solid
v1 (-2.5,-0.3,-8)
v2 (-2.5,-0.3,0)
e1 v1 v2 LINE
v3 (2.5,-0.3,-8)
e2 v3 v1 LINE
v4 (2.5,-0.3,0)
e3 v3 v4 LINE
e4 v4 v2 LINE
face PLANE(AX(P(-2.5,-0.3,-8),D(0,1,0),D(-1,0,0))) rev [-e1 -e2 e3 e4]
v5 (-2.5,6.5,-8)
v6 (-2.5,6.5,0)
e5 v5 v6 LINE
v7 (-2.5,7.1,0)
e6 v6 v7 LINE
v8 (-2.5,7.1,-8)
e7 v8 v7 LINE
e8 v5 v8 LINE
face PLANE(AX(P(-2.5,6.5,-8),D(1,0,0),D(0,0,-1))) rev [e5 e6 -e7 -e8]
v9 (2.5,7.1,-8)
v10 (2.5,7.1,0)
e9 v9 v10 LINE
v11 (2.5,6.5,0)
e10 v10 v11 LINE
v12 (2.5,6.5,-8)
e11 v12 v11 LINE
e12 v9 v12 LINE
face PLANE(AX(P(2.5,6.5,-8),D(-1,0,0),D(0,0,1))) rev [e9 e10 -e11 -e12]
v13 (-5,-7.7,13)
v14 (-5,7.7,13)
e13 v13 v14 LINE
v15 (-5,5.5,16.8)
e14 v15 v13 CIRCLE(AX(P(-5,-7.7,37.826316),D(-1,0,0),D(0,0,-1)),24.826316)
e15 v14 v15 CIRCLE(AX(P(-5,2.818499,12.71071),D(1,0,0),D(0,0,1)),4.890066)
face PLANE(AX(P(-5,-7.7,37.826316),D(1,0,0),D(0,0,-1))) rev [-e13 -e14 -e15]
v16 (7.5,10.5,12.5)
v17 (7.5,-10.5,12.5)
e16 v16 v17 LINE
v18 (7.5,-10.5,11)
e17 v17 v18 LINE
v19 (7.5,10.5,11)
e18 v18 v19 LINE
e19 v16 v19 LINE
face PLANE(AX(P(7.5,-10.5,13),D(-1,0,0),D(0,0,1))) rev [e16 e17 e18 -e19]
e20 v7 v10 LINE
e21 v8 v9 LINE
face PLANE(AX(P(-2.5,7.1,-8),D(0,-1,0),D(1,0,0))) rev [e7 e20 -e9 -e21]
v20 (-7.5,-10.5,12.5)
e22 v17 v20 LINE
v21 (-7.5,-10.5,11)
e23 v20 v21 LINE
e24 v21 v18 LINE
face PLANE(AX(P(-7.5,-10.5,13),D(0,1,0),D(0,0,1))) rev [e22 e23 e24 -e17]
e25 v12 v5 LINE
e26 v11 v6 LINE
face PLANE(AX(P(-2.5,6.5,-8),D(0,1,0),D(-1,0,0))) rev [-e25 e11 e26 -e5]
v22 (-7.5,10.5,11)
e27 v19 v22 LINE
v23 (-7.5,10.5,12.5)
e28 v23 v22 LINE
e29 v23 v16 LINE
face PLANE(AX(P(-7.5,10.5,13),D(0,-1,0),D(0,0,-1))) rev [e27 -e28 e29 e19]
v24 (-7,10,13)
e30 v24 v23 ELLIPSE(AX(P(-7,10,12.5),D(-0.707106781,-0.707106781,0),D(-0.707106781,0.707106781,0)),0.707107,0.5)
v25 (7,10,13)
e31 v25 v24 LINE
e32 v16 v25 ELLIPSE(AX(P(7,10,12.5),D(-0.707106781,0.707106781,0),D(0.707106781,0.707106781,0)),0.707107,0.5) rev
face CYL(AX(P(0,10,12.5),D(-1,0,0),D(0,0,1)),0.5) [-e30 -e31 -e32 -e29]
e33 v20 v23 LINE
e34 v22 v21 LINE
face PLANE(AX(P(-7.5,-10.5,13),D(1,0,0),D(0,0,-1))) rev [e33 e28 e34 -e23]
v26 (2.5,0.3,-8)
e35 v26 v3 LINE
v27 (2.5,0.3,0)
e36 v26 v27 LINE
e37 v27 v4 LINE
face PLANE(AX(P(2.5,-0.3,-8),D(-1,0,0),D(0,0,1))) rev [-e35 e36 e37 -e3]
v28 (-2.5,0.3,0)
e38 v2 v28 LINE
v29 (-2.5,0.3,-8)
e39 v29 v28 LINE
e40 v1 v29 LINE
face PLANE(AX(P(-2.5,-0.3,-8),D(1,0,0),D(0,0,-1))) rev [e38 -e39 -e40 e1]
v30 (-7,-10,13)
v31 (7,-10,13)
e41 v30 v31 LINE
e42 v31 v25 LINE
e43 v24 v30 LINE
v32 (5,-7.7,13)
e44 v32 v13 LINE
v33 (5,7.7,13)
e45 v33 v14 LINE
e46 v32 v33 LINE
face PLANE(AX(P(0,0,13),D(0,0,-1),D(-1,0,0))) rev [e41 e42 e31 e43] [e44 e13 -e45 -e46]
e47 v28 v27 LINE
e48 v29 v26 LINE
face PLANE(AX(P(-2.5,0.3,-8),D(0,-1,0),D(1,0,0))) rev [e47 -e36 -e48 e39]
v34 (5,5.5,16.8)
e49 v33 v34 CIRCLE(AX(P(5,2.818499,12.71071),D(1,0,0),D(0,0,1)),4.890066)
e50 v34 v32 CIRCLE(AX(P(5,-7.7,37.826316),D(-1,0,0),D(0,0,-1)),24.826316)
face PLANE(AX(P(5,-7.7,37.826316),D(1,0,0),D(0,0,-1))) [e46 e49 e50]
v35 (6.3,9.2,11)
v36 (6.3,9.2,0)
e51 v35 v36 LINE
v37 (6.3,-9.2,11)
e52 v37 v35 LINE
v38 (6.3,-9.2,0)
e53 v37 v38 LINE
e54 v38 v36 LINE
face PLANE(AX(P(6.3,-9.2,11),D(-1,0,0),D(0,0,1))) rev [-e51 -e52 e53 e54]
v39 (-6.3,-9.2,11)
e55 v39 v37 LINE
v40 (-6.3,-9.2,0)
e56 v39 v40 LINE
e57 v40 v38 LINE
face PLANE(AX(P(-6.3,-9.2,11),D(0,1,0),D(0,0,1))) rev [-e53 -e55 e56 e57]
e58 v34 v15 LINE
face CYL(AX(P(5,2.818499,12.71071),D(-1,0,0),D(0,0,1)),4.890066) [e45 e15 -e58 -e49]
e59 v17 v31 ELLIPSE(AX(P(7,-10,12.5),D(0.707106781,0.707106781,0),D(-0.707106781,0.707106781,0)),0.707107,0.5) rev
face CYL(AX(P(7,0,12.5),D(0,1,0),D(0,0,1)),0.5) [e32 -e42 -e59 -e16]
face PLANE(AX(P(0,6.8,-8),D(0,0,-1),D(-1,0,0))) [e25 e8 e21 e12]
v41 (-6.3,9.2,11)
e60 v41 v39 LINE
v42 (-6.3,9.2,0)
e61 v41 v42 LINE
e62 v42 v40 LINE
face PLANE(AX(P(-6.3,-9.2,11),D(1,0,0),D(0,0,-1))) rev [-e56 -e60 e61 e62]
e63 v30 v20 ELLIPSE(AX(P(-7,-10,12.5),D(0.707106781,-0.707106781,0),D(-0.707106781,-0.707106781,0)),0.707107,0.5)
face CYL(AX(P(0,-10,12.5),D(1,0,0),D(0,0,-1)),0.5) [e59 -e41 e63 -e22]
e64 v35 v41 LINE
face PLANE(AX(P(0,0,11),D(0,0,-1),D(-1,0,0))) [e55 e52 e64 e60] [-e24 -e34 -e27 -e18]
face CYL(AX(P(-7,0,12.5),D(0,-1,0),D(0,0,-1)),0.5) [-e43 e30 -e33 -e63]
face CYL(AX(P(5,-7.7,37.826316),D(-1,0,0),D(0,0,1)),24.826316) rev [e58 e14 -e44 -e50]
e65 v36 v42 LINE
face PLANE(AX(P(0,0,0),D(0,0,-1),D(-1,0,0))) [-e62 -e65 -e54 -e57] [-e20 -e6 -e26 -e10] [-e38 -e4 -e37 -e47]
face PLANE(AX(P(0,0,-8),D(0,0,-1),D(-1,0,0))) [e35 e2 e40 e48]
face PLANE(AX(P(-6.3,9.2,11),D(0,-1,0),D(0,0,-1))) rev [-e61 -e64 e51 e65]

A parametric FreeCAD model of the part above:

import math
import FreeCAD as App
import Part
import Sketcher
from FreeCAD import Vector
Q = App.Units.Quantity


def edges_at(feature, points):
    """Names of the edges that pass closest to the given points."""
    edges = feature.Shape.Edges
    near = lambda p: min(range(len(edges)), key=lambda i: edges[i].distToShape(Part.Vertex(*p))[0])
    return sorted({f"Edge{near(p) + 1}" for p in points})

doc = App.newDocument("Part")
body = doc.addObject("PartDesign::Body", "Body")

# Sketch on XY plane
sketch1 = body.newObject("Sketcher::SketchObject", "Sketch")
sketch1.AttachmentSupport = (doc.getObject("XY_Plane"), [""])
sketch1.MapMode = "FlatFace"
sketch1.addGeometry(Part.LineSegment(Vector(-6, 9, 0), Vector(-6, -9, 0)), False)
sketch1.addGeometry(Part.LineSegment(Vector(-6, -9, 0), Vector(6, -9, 0)), False)
sketch1.addGeometry(Part.LineSegment(Vector(6, -9, 0), Vector(6, 9, 0)), False)
sketch1.addGeometry(Part.LineSegment(Vector(6, 9, 0), Vector(-6, 9, 0)), False)
sketch1.addConstraint(Sketcher.Constraint("Coincident", 0, 2, 1, 1))
sketch1.addConstraint(Sketcher.Constraint("Coincident", 1, 2, 2, 1))
sketch1.addConstraint(Sketcher.Constraint("Coincident", 2, 2, 3, 1))
sketch1.addConstraint(Sketcher.Constraint("Coincident", 3, 2, 0, 1))
sketch1.addConstraint(Sketcher.Constraint("Vertical", 0))
sketch1.addConstraint(Sketcher.Constraint("Horizontal", 1))
sketch1.addConstraint(Sketcher.Constraint("Vertical", 2))
sketch1.addConstraint(Sketcher.Constraint("Horizontal", 3))
sketch1.addConstraint(Sketcher.Constraint("Symmetric", 0, 2, 2, 2, -1, 1))
sketch1.addConstraint(Sketcher.Constraint("DistanceX", 1, 1, 1, 2, Q("12.6 mm")))
sketch1.addConstraint(Sketcher.Constraint("DistanceY", 0, 2, 0, 1, Q("18.4 mm")))
pad1 = body.newObject("PartDesign::Pad", "Pad")
pad1.Profile = sketch1
pad1.Length = 11

# Sketch on XY plane
sketch2 = body.newObject("Sketcher::SketchObject", "Sketch001")
sketch2.AttachmentSupport = (doc.getObject("XY_Plane"), [""])
sketch2.MapMode = "FlatFace"
sketch2.AttachmentOffset = App.Placement(Vector(0, 0, 11), App.Rotation())
sketch2.addGeometry(Part.LineSegment(Vector(-8, 10, 0), Vector(-8, -10, 0)), False)
sketch2.addGeometry(Part.LineSegment(Vector(-8, -10, 0), Vector(8, -10, 0)), False)
sketch2.addGeometry(Part.LineSegment(Vector(8, -10, 0), Vector(8, 10, 0)), False)
sketch2.addGeometry(Part.LineSegment(Vector(8, 10, 0), Vector(-8, 10, 0)), False)
sketch2.addConstraint(Sketcher.Constraint("Coincident", 0, 2, 1, 1))
sketch2.addConstraint(Sketcher.Constraint("Coincident", 1, 2, 2, 1))
sketch2.addConstraint(Sketcher.Constraint("Coincident", 2, 2, 3, 1))
sketch2.addConstraint(Sketcher.Constraint("Coincident", 3, 2, 0, 1))
sketch2.addConstraint(Sketcher.Constraint("Vertical", 0))
sketch2.addConstraint(Sketcher.Constraint("Horizontal", 1))
sketch2.addConstraint(Sketcher.Constraint("Vertical", 2))
sketch2.addConstraint(Sketcher.Constraint("Horizontal", 3))
sketch2.addConstraint(Sketcher.Constraint("Symmetric", 0, 2, 2, 2, -1, 1))
sketch2.addConstraint(Sketcher.Constraint("DistanceX", 1, 1, 1, 2, Q("15 mm")))
sketch2.addConstraint(Sketcher.Constraint("DistanceY", 0, 2, 0, 1, Q("21 mm")))
pad2 = body.newObject("PartDesign::Pad", "Pad001")
pad2.Profile = sketch2
pad2.Length = 2
doc.recompute()

fillet = body.newObject("PartDesign::Fillet", "Fillet")
fillet.Base = (pad2, edges_at(pad2, [
    (7.5, 0, 13),
    (0, 10.5, 13),
    (-7.5, 0, 13),
    (0, -10.5, 13),
]))
fillet.Radius = 0.5

# Sketch on YZ plane
sketch3 = body.newObject("Sketcher::SketchObject", "Sketch002")
sketch3.AttachmentSupport = (doc.getObject("YZ_Plane"), [""])
sketch3.MapMode = "FlatFace"
sketch3.addGeometry(Part.LineSegment(Vector(-7.7, 13, 0), Vector(7.7, 13, 0)), False)
sketch3.addGeometry(Part.ArcOfCircle(Part.Circle(Vector(2.8, 12.7, 0), Vector(0, 0, 1), 4.9), math.radians(3), math.radians(57)), False)
sketch3.addGeometry(Part.ArcOfCircle(Part.Circle(Vector(-7.7, 37.8, 0), Vector(0, 0, 1), 24.8), math.radians(-90), math.radians(-58)), False)
sketch3.addConstraint(Sketcher.Constraint("Coincident", 0, 2, 1, 1))
sketch3.addConstraint(Sketcher.Constraint("Coincident", 1, 2, 2, 2))
sketch3.addConstraint(Sketcher.Constraint("Tangent", 2, 1, 0, 1))
sketch3.addConstraint(Sketcher.Constraint("Horizontal", 0))
sketch3.addConstraint(Sketcher.Constraint("DistanceX", 0, 1, 0, 2, Q("15.4 mm")))
sketch3.addConstraint(Sketcher.Constraint("DistanceY", -1, 1, 0, 2, Q("13 mm")))
sketch3.addConstraint(Sketcher.Constraint("DistanceX", 2, 3, -1, 1, Q("7.7 mm")))
sketch3.addConstraint(Sketcher.Constraint("DistanceX", -1, 1, 1, 2, Q("5.5 mm")))
sketch3.addConstraint(Sketcher.Constraint("DistanceY", -1, 1, 1, 2, Q("16.8 mm")))
sketch3.addConstraint(Sketcher.Constraint("Radius", 1, Q("4.890066 mm")))
pad3 = body.newObject("PartDesign::Pad", "Pad002")
pad3.Profile = sketch3
pad3.Length = 10
pad3.Midplane = True

# Sketch on XY plane
sketch4 = body.newObject("Sketcher::SketchObject", "Sketch003")
sketch4.AttachmentSupport = (doc.getObject("XY_Plane"), [""])
sketch4.MapMode = "FlatFace"
sketch4.addGeometry(Part.LineSegment(Vector(2.5, 0.3, 0), Vector(2.5, -0.3, 0)), False)
sketch4.addGeometry(Part.LineSegment(Vector(2.5, -0.3, 0), Vector(-2.5, -0.3, 0)), False)
sketch4.addGeometry(Part.LineSegment(Vector(-2.5, -0.3, 0), Vector(-2.5, 0.3, 0)), False)
sketch4.addGeometry(Part.LineSegment(Vector(-2.5, 0.3, 0), Vector(2.5, 0.3, 0)), False)
sketch4.addConstraint(Sketcher.Constraint("Coincident", 0, 2, 1, 1))
sketch4.addConstraint(Sketcher.Constraint("Coincident", 1, 2, 2, 1))
sketch4.addConstraint(Sketcher.Constraint("Coincident", 2, 2, 3, 1))
sketch4.addConstraint(Sketcher.Constraint("Coincident", 3, 2, 0, 1))
sketch4.addConstraint(Sketcher.Constraint("Vertical", 0))
sketch4.addConstraint(Sketcher.Constraint("Horizontal", 1))
sketch4.addConstraint(Sketcher.Constraint("Vertical", 2))
sketch4.addConstraint(Sketcher.Constraint("Horizontal", 3))
sketch4.addConstraint(Sketcher.Constraint("Symmetric", 0, 2, 2, 2, -1, 1))
sketch4.addConstraint(Sketcher.Constraint("DistanceX", 1, 2, 1, 1, Q("5 mm")))
sketch4.addConstraint(Sketcher.Constraint("DistanceY", 0, 2, 0, 1, Q("0.6 mm")))
pad4 = body.newObject("PartDesign::Pad", "Pad003")
pad4.Profile = sketch4
pad4.Length = 8
pad4.Reversed = True
doc.recompute()

linearpattern = body.newObject("PartDesign::LinearPattern", "LinearPattern")
linearpattern.Originals = [pad4]
linearpattern.Direction = (doc.getObject("Y_Axis"), [""])
linearpattern.Mode = "offset"
linearpattern.Offset = 6.8
linearpattern.Occurrences = 2
body.Tip = linearpattern

doc.recompute()
